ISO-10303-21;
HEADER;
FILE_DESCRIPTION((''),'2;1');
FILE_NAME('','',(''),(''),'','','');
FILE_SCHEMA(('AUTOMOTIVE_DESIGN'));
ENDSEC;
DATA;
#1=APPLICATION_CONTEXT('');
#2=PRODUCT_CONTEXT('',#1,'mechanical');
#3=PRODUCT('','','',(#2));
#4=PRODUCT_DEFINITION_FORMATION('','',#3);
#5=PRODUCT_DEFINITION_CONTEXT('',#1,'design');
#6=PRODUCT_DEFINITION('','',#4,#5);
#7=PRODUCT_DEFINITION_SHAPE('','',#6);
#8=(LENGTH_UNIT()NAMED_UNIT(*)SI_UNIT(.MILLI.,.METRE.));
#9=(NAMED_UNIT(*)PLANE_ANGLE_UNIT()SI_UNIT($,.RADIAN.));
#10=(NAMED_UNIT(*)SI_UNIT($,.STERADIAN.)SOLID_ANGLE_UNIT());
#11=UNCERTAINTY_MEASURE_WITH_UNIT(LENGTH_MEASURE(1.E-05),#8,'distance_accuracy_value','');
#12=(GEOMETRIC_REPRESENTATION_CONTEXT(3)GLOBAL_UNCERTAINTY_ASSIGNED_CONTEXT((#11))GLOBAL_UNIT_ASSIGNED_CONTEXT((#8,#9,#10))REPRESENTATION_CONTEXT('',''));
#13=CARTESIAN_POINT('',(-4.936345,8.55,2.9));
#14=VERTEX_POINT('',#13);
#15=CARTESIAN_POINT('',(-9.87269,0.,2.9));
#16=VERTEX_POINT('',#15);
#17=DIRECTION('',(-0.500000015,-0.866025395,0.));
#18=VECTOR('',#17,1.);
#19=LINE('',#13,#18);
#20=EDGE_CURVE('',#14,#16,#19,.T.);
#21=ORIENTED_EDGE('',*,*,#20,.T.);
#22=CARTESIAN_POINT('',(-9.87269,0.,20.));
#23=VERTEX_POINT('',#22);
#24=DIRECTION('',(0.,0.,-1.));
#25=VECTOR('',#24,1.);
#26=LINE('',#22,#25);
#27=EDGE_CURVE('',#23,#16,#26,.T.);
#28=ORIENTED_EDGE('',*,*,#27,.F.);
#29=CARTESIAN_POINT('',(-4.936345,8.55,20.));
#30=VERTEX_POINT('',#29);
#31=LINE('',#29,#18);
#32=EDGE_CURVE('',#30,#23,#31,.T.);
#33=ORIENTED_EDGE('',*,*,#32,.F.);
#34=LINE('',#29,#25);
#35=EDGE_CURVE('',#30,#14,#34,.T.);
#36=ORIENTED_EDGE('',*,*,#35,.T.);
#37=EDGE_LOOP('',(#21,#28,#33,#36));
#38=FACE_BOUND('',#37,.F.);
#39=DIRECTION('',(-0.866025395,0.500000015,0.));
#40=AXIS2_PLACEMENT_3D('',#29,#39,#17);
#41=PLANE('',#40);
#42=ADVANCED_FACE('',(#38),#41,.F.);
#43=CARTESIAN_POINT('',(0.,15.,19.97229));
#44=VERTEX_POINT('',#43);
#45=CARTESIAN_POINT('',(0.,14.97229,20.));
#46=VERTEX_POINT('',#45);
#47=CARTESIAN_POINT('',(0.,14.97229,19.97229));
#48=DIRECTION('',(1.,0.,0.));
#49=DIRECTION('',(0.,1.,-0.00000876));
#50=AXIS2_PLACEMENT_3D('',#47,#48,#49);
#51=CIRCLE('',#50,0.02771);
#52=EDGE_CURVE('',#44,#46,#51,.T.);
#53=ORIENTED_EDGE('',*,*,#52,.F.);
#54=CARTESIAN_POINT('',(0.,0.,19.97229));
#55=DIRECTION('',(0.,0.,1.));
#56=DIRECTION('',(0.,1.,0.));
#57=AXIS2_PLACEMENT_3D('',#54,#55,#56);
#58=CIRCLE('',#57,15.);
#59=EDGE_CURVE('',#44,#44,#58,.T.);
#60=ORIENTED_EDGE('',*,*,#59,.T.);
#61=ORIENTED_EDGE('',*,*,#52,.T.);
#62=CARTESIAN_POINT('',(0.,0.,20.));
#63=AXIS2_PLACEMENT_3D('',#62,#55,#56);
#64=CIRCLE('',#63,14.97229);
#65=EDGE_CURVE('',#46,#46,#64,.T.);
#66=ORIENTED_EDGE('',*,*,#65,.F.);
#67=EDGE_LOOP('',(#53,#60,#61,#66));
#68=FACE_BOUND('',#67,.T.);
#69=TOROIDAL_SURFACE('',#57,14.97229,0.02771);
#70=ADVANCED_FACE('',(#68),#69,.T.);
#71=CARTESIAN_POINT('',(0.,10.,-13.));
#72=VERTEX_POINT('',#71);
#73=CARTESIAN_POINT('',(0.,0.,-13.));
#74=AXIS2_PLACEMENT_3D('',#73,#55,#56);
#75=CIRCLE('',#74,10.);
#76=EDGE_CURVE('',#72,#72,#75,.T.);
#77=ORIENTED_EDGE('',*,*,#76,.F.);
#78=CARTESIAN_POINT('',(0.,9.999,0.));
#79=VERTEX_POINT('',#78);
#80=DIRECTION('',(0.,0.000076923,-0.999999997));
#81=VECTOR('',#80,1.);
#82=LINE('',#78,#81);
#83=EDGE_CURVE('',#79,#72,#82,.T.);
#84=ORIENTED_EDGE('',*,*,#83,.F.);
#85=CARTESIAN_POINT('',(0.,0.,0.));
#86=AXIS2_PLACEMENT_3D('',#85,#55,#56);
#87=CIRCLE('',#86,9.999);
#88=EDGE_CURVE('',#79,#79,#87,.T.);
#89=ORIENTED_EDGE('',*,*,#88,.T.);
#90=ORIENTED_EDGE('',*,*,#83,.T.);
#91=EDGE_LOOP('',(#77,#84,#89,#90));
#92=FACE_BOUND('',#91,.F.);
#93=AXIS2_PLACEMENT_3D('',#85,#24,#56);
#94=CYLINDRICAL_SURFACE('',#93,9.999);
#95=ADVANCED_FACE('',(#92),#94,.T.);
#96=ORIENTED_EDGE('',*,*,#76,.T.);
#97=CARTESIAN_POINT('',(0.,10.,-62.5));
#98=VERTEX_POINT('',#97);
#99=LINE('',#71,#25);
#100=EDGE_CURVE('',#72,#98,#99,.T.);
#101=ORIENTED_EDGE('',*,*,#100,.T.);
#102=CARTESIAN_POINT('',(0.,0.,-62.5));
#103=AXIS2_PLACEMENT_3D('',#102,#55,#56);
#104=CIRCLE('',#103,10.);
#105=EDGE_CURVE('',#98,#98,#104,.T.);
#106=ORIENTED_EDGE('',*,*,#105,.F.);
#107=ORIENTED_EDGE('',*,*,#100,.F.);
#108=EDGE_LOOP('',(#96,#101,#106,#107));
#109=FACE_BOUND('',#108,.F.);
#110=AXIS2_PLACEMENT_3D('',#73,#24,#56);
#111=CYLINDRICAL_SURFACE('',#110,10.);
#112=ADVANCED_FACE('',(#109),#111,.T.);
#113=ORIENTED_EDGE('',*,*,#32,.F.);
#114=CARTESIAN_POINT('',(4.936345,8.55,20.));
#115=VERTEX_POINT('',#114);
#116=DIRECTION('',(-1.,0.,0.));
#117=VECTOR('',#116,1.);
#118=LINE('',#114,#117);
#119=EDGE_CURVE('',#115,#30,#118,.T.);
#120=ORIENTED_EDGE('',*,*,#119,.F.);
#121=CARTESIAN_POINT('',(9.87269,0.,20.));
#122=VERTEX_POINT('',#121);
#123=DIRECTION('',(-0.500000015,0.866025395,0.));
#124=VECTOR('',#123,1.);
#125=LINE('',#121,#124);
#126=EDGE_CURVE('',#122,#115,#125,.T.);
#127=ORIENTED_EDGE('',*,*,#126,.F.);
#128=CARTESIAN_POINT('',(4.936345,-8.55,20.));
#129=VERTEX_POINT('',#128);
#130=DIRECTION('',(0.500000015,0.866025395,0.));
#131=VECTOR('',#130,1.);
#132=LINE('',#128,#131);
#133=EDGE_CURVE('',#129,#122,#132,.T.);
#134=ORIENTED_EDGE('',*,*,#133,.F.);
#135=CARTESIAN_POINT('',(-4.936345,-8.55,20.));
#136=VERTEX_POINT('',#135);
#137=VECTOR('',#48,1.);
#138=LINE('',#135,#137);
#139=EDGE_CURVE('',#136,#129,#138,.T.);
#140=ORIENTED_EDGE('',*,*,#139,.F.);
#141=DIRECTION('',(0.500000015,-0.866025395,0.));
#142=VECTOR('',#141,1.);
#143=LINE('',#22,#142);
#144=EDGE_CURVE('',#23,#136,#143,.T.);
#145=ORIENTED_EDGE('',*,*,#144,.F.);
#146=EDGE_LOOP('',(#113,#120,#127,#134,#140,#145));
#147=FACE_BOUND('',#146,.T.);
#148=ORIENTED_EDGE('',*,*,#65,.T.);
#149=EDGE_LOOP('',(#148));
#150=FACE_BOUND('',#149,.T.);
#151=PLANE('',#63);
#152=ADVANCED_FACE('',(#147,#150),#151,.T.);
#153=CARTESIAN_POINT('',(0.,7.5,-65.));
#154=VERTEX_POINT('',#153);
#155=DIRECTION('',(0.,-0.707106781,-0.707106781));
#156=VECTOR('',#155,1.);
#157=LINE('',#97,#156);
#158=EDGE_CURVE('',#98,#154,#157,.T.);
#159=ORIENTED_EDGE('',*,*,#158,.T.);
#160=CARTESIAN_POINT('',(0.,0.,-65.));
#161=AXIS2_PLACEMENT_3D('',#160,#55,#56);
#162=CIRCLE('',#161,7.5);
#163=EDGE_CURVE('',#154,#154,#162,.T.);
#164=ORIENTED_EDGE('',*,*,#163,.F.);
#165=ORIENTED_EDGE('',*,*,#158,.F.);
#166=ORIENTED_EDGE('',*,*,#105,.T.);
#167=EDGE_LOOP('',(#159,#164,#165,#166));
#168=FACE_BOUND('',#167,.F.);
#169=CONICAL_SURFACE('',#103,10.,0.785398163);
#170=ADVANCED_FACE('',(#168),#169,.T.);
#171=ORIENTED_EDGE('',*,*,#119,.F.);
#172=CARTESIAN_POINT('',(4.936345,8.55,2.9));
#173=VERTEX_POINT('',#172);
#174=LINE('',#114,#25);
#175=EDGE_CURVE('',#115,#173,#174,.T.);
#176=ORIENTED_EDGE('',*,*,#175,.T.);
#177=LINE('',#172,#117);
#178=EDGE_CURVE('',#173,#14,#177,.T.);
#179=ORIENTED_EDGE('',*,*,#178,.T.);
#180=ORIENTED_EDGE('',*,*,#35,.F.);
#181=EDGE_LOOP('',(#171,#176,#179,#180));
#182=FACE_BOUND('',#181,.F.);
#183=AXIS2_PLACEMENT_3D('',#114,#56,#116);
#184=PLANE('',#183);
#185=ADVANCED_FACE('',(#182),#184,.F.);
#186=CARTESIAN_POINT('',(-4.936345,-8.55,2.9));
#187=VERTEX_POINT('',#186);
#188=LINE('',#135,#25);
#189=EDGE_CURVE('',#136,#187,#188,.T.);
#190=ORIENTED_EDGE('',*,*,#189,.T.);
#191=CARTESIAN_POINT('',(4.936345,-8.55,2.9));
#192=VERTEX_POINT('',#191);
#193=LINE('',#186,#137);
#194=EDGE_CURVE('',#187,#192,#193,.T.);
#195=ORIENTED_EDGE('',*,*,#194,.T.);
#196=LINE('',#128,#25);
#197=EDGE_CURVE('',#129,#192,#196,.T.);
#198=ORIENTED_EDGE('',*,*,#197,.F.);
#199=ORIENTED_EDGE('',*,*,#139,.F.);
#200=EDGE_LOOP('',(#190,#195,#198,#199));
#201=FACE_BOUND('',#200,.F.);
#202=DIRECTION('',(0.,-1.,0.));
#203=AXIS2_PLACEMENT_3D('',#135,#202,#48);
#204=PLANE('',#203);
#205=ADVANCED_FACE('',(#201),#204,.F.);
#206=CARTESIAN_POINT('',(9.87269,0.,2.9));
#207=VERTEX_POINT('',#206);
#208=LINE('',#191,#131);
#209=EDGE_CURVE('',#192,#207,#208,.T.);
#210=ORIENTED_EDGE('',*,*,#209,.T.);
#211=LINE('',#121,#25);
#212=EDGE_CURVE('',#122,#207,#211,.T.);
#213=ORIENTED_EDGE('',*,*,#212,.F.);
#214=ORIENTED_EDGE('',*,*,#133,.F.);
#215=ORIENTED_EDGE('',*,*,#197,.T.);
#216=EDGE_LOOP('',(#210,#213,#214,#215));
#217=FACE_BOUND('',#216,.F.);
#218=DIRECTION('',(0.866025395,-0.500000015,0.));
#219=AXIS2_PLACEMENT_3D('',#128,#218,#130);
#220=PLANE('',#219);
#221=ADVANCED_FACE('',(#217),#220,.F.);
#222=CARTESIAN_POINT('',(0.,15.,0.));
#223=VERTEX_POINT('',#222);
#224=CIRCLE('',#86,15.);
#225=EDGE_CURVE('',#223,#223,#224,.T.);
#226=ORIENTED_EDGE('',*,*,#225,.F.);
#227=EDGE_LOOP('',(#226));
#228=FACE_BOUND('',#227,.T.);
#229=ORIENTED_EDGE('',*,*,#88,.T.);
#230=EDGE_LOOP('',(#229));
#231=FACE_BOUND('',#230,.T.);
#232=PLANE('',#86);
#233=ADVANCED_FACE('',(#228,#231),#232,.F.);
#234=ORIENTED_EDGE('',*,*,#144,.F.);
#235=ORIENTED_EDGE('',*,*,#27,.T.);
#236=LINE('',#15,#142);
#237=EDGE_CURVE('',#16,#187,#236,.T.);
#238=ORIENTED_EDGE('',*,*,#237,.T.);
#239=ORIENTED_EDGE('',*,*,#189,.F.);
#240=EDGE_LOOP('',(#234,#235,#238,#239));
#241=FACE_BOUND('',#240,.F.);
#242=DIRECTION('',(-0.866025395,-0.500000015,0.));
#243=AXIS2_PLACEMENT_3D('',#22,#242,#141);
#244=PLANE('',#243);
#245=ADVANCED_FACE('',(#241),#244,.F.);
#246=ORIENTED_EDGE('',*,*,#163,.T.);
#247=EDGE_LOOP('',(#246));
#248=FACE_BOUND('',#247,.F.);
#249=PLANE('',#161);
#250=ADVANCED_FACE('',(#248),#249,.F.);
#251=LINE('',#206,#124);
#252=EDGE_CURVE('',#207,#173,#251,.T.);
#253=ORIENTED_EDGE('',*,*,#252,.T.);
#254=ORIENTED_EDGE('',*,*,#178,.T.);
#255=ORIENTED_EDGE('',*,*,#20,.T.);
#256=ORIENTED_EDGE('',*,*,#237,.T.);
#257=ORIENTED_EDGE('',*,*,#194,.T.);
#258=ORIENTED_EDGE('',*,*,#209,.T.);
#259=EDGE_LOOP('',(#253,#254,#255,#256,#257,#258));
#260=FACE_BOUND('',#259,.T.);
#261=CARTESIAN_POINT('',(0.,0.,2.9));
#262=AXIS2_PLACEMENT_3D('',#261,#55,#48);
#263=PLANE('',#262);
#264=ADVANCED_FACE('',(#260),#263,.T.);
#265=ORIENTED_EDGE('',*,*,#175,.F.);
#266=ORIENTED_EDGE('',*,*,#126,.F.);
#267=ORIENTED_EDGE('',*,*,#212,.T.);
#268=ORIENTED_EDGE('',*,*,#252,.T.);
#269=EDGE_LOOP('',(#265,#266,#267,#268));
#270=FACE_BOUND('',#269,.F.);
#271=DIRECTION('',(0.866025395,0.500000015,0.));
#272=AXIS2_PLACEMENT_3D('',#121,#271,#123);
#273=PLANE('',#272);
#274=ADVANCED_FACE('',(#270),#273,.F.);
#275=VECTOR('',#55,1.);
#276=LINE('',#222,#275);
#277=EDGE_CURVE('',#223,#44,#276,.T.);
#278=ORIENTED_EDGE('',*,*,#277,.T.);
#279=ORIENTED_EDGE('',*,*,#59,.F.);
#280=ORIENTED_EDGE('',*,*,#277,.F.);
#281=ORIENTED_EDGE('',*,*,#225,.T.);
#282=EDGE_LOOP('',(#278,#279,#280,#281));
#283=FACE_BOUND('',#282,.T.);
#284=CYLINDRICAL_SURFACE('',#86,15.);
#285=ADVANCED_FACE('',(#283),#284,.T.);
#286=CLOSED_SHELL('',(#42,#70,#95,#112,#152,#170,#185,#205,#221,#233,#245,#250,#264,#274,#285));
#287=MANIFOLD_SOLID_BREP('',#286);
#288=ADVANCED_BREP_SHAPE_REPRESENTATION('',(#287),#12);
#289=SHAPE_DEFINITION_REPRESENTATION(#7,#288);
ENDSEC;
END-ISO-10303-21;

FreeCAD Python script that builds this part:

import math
import FreeCAD as App
import Part
import Sketcher
from FreeCAD import Vector
Q = App.Units.Quantity


def add_polygon(sketch, points):
    """Adds a closed chain of lines whose ends are joined by coincident constraints."""
    first, n = sketch.GeometryCount, len(points)
    for a, b in zip(points, points[1:] + points[:1]):
        sketch.addGeometry(Part.LineSegment(App.Vector(*a, 0), App.Vector(*b, 0)), False)
    for i in range(n):
        sketch.addConstraint(Sketcher.Constraint("Coincident", first + i, 2, first + (i + 1) % n, 1))

doc = App.newDocument("Part")
body = doc.addObject("PartDesign::Body", "Body")

# Sketch on YZ plane
sketch1 = doc.addObject("Sketcher::SketchObject", "Sketch")
body.addObject(sketch1)
sketch1.AttachmentSupport = (doc.YZ_Plane, [""])
sketch1.MapMode = "FlatFace"
sketch1.addGeometry([
    Part.LineSegment(Vector(9.999, 0, 0), Vector(15, 0, 0)),  # 0
    Part.LineSegment(Vector(15, 0, 0), Vector(15, 19.97229, 0)),  # 1
    Part.ArcOfCircle(Part.Circle(Vector(14.97229, 19.97229, 0), Vector(0, 0, 1), 0.02771), math.radians(-0.000502), math.radians(90.000502)),  # 2
    Part.LineSegment(Vector(14.97229, 20, 0), Vector(0, 20, 0)),  # 3
    Part.LineSegment(Vector(0, 20, 0), Vector(0, -65, 0)),  # 4
    Part.LineSegment(Vector(0, -65, 0), Vector(7.5, -65, 0)),  # 5
    Part.LineSegment(Vector(7.5, -65, 0), Vector(10, -62.5, 0)),  # 6
    Part.LineSegment(Vector(10, -62.5, 0), Vector(10, -13, 0)),  # 7
    Part.LineSegment(Vector(10, -13, 0), Vector(9.999, 0, 0)),  # 8
], False)
sketch1.addConstraint([
    Sketcher.Constraint("Coincident", 0, 2, 1, 1),
    Sketcher.Constraint("Coincident", 1, 2, 2, 1),
    Sketcher.Constraint("Coincident", 2, 2, 3, 1),
    Sketcher.Constraint("Coincident", 3, 2, 4, 1),
    Sketcher.Constraint("Coincident", 4, 2, 5, 1),
    Sketcher.Constraint("Coincident", 5, 2, 6, 1),
    Sketcher.Constraint("Coincident", 6, 2, 7, 1),
    Sketcher.Constraint("Coincident", 7, 2, 8, 1),
    Sketcher.Constraint("Coincident", 8, 2, 0, 1),
    Sketcher.Constraint("Horizontal", 0),
    Sketcher.Constraint("Vertical", 1),
    Sketcher.Constraint("Horizontal", 3),
    Sketcher.Constraint("Vertical", 4),
    Sketcher.Constraint("Horizontal", 5),
    Sketcher.Constraint("Vertical", 7),
    Sketcher.Constraint("PointOnObject", 0, 2, -1),
    Sketcher.Constraint("PointOnObject", 3, 2, -2),
    Sketcher.Constraint("Horizontal", 2, 3, 1, 2),
    Sketcher.Constraint("DistanceY", 4, 2, 4, 1, Q("85 mm")),
    Sketcher.Constraint("Angle", 6, Q("45 deg")),
    Sketcher.Constraint("Distance", 8, Q("13 mm")),
    Sketcher.Constraint("DistanceX", 5, 1, 5, 2, Q("7.5 mm")),
    Sketcher.Constraint("DistanceY", 7, 1, 7, 2, Q("49.5 mm")),
    Sketcher.Constraint("DistanceX", -1, 1, 0, 2, Q("15 mm")),
    Sketcher.Constraint("DistanceY", -1, 1, 2, 2, Q("20 mm")),
    Sketcher.Constraint("DistanceX", 0, 1, 0, 2, Q("5.001 mm")),
    Sketcher.Constraint("Radius", 2, Q("0.02771 mm")),
    Sketcher.Constraint("DistanceX", 3, 2, 3, 1, Q("14.97229 mm")),
])
revolution = doc.addObject("PartDesign::Revolution", "Revolution")
body.addObject(revolution)
revolution.Profile = sketch1
revolution.ReferenceAxis = (sketch1, ["V_Axis"])
revolution.Angle = 360

# Sketch on XY plane
sketch2 = doc.addObject("Sketcher::SketchObject", "Sketch001")
body.addObject(sketch2)
sketch2.AttachmentSupport = (doc.XY_Plane, [""])
sketch2.MapMode = "FlatFace"
sketch2.AttachmentOffset = App.Placement(Vector(0, 0, 20), App.Rotation())
add_polygon(sketch2, [(9.87269, 0), (4.936345, 8.55), (-4.936345, 8.55), (-9.87269, 0), (-4.936345, -8.55), (4.936345, -8.55)])  # lines 0-5
sketch2.addConstraint([
    Sketcher.Constraint("Horizontal", 1),
    Sketcher.Constraint("Horizontal", 4),
    Sketcher.Constraint("Symmetric", 0, 2, 3, 2, -1, 1),
    Sketcher.Constraint("Symmetric", 2, 2, 5, 2, -1, 1),
    Sketcher.Constraint("PointOnObject", 2, 2, -1),
    Sketcher.Constraint("Parallel", 2, 5),
    Sketcher.Constraint("Vertical", 1, 2, 3, 2),
    Sketcher.Constraint("Angle", 0, Q("120.000001 deg")),
    Sketcher.Constraint("DistanceY", 3, 2, 1, 2, Q("17.1 mm")),
    Sketcher.Constraint("DistanceX", 1, 2, 1, 1, Q("9.87269 mm")),
])
pocket1 = doc.addObject("PartDesign::Pocket", "Pocket")
body.addObject(pocket1)
pocket1.Profile = sketch2
pocket1.Length = 17.1

doc.recompute()
